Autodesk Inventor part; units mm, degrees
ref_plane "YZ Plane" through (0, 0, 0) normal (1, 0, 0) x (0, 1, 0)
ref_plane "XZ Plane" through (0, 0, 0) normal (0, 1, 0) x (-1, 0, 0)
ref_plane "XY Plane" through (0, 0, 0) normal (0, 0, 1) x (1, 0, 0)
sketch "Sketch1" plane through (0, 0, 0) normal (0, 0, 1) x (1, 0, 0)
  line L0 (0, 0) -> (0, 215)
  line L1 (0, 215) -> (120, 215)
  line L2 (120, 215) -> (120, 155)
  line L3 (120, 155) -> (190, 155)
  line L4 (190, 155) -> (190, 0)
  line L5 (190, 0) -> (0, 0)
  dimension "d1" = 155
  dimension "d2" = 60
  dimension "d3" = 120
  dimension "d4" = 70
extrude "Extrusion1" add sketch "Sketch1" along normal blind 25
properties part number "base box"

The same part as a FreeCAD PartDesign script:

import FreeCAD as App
import Part
import Sketcher
from FreeCAD import Vector
Q = App.Units.Quantity


def add_polygon(sketch, points):
    """Adds a closed chain of lines whose ends are joined by coincident constraints."""
    first, n = sketch.GeometryCount, len(points)
    for a, b in zip(points, points[1:] + points[:1]):
        sketch.addGeometry(Part.LineSegment(App.Vector(*a, 0), App.Vector(*b, 0)), False)
    for i in range(n):
        sketch.addConstraint(Sketcher.Constraint("Coincident", first + i, 2, first + (i + 1) % n, 1))

doc = App.newDocument("Part")
body = doc.addObject("PartDesign::Body", "Body")

# Sketch on XY plane
sketch1 = doc.addObject("Sketcher::SketchObject", "Sketch")
body.addObject(sketch1)
sketch1.AttachmentSupport = (doc.XY_Plane, [""])
sketch1.MapMode = "FlatFace"
add_polygon(sketch1, [(0, 215), (0, 0), (190, 0), (190, 155), (120, 155), (120, 215)])  # lines 0-5
sketch1.addConstraint(Sketcher.Constraint("Vertical", 0))
sketch1.addConstraint(Sketcher.Constraint("Horizontal", 1))
sketch1.addConstraint(Sketcher.Constraint("Vertical", 2))
sketch1.addConstraint(Sketcher.Constraint("Horizontal", 3))
sketch1.addConstraint(Sketcher.Constraint("Vertical", 4))
sketch1.addConstraint(Sketcher.Constraint("Horizontal", 5))
sketch1.addConstraint(Sketcher.Constraint("Coincident", 0, 2, -1, 1))
sketch1.addConstraint(Sketcher.Constraint("DistanceX", 3, 2, 3, 1, Q("70 mm")))
sketch1.addConstraint(Sketcher.Constraint("DistanceX", 5, 2, 5, 1, Q("120 mm")))
sketch1.addConstraint(Sketcher.Constraint("DistanceY", 2, 1, 2, 2, Q("155 mm")))
sketch1.addConstraint(Sketcher.Constraint("DistanceY", 4, 1, 4, 2, Q("60 mm")))
pad1 = doc.addObject("PartDesign::Pad", "Pad")
body.addObject(pad1)
pad1.Profile = sketch1
pad1.Length = 25

doc.recompute()
